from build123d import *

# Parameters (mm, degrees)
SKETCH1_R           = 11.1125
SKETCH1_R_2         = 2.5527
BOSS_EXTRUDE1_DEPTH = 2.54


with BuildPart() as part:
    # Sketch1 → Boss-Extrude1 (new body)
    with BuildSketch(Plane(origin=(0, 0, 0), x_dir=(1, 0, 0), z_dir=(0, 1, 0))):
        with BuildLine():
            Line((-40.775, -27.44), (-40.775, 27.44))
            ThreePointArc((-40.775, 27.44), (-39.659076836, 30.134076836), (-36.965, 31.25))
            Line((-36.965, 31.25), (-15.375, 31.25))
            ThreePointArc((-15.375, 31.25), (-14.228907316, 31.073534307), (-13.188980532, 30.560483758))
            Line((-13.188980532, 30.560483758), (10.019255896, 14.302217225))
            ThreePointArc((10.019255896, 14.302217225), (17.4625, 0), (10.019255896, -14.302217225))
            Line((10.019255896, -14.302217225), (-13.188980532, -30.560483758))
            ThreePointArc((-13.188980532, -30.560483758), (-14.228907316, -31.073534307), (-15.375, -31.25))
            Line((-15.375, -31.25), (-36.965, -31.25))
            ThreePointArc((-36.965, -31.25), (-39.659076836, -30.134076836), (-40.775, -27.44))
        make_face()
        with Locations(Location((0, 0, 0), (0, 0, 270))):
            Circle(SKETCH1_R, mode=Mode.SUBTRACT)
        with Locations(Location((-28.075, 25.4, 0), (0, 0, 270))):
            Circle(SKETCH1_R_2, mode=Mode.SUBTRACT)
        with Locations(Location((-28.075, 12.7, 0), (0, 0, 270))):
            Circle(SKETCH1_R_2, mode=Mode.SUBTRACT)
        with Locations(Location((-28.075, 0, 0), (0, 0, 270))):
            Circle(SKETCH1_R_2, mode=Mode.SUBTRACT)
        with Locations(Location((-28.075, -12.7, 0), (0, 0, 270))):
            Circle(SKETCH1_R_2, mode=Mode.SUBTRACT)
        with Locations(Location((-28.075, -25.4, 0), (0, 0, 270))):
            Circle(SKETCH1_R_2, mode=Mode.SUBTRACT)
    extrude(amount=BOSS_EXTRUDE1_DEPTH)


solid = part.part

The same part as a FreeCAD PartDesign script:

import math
import FreeCAD as App
import Part
import Sketcher
Q = App.Units.Quantity

doc = App.newDocument("Part")
params = doc.addObject("Spreadsheet::Sheet", "Params")
for row, (alias, value) in enumerate([
    ("sketch1_radius", "0.15 in"),
    ("sketch1_diameter", "0.201 in"),
    ("sketch1_diameter2", "0.875 in"),
    ("sketch1_radius2", "0.6875 in"),
    ("pad1_length", "0.1 in"),
], start=1):
    params.set(f"A{row}", alias)
    params.set(f"B{row}", "=" + value)
    params.setAlias(f"B{row}", alias)

body = doc.addObject("PartDesign::Body", "Body")

# Sketch on XZ plane
sketch1 = doc.addObject("Sketcher::SketchObject", "Sketch")
body.addObject(sketch1)
sketch1.AttachmentSupport = (doc.XZ_Plane, [""])
sketch1.MapMode = "FlatFace"
sketch1.addGeometry(Part.LineSegment(App.Vector(-40.775, -27.44, 0), App.Vector(-40.775, 27.44, 0)), False)
sketch1.addGeometry(Part.ArcOfCircle(Part.Circle(App.Vector(-36.965, 27.44, 0), App.Vector(0, 0, 1), 3.81), math.radians(90), math.radians(180)), False)
sketch1.addGeometry(Part.LineSegment(App.Vector(-36.965, 31.25, 0), App.Vector(-15.375, 31.25, 0)), False)
sketch1.addGeometry(Part.ArcOfCircle(Part.Circle(App.Vector(-15.375, 27.44, 0), App.Vector(0, 0, 1), 3.81), math.radians(54.987272), math.radians(90)), False)
sketch1.addGeometry(Part.LineSegment(App.Vector(-13.188981, 30.560484, 0), App.Vector(10.019256, 14.302217, 0)), False)
sketch1.addGeometry(Part.ArcOfCircle(Part.Circle(App.Vector(0, 0, 0), App.Vector(0, 0, 1), 17.4625), math.radians(-54.987272), math.radians(54.987272)), False)
sketch1.addGeometry(Part.LineSegment(App.Vector(10.019256, -14.302217, 0), App.Vector(-13.188981, -30.560484, 0)), False)
sketch1.addGeometry(Part.ArcOfCircle(Part.Circle(App.Vector(-15.375, -27.44, 0), App.Vector(0, 0, 1), 3.81), math.radians(-90), math.radians(-54.987272)), False)
sketch1.addGeometry(Part.LineSegment(App.Vector(-15.375, -31.25, 0), App.Vector(-36.965, -31.25, 0)), False)
sketch1.addGeometry(Part.ArcOfCircle(Part.Circle(App.Vector(-36.965, -27.44, 0), App.Vector(0, 0, 1), 3.81), math.radians(-180), math.radians(-90)), False)
sketch1.addGeometry(Part.Circle(App.Vector(-28.075, 25.4, 0), App.Vector(0, 0, 1), 2.5527), False)
sketch1.addGeometry(Part.Circle(App.Vector(-28.075, 12.7, 0), App.Vector(0, 0, 1), 2.5527), False)
sketch1.addGeometry(Part.Circle(App.Vector(0, 0, 0), App.Vector(0, 0, 1), 11.1125), False)
sketch1.addGeometry(Part.Circle(App.Vector(-28.075, 0, 0), App.Vector(0, 0, 1), 2.5527), False)
sketch1.addGeometry(Part.Circle(App.Vector(-28.075, -12.7, 0), App.Vector(0, 0, 1), 2.5527), False)
sketch1.addGeometry(Part.Circle(App.Vector(-28.075, -25.4, 0), App.Vector(0, 0, 1), 2.5527), False)
sketch1.addConstraint(Sketcher.Constraint("Tangent", 0, 2, 1, 2))
sketch1.addConstraint(Sketcher.Constraint("Tangent", 1, 1, 2, 1))
sketch1.addConstraint(Sketcher.Constraint("Tangent", 2, 2, 3, 2))
sketch1.addConstraint(Sketcher.Constraint("Tangent", 3, 1, 4, 1))
sketch1.addConstraint(Sketcher.Constraint("Tangent", 4, 2, 5, 2))
sketch1.addConstraint(Sketcher.Constraint("Tangent", 5, 1, 6, 1))
sketch1.addConstraint(Sketcher.Constraint("Tangent", 6, 2, 7, 2))
sketch1.addConstraint(Sketcher.Constraint("Tangent", 7, 1, 8, 1))
sketch1.addConstraint(Sketcher.Constraint("Tangent", 8, 2, 9, 2))
sketch1.addConstraint(Sketcher.Constraint("Tangent", 9, 1, 0, 1))
sketch1.addConstraint(Sketcher.Constraint("Vertical", 0))
sketch1.addConstraint(Sketcher.Constraint("Horizontal", 2))
sketch1.addConstraint(Sketcher.Constraint("Horizontal", 8))
sketch1.addConstraint(Sketcher.Constraint("Coincident", 5, 3, -1, 1))
sketch1.addConstraint(Sketcher.Constraint("Coincident", 12, 3, -1, 1))
sketch1.addConstraint(Sketcher.Constraint("Equal", 1, 3))
sketch1.addConstraint(Sketcher.Constraint("Equal", 3, 7))
sketch1.addConstraint(Sketcher.Constraint("Equal", 7, 9))
sketch1.addConstraint(Sketcher.Constraint("Equal", 10, 11))
sketch1.addConstraint(Sketcher.Constraint("Equal", 11, 13))
sketch1.addConstraint(Sketcher.Constraint("Equal", 13, 14))
sketch1.addConstraint(Sketcher.Constraint("Equal", 14, 15))
sketch1.addConstraint(Sketcher.Constraint("Symmetric", 3, 3, 7, 3, -1))
sketch1.addConstraint(Sketcher.Constraint("Symmetric", 11, 3, 14, 3, -1))
sketch1.addConstraint(Sketcher.Constraint("Symmetric", 10, 3, 15, 3, -1))
sketch1.addConstraint(Sketcher.Constraint("PointOnObject", 13, 3, -1))
sketch1.addConstraint(Sketcher.Constraint("Vertical", 10, 3, 11, 3))
sketch1.addConstraint(Sketcher.Constraint("Vertical", 11, 3, 13, 3))
sketch1.addConstraint(Sketcher.Constraint("Radius", 1, Q("0.15 in")))
sketch1.addConstraint(Sketcher.Constraint("Diameter", 10, Q("0.201 in")))
sketch1.addConstraint(Sketcher.Constraint("Diameter", 12, Q("0.875 in")))
sketch1.addConstraint(Sketcher.Constraint("DistanceY", -1, 1, 10, 3, Q("1 in")))
sketch1.addConstraint(Sketcher.Constraint("Radius", 5, Q("0.6875 in")))
sketch1.addConstraint(Sketcher.Constraint("DistanceY", 14, 3, 11, 3, Q("1 in")))
sketch1.addConstraint(Sketcher.Constraint("DistanceX", 0, 2, 3, 3, Q("1 in")))
sketch1.addConstraint(Sketcher.Constraint("DistanceX", 10, 3, 3, 3, Q("0.5 in")))
sketch1.addConstraint(Sketcher.Constraint("DistanceY", 0, 1, 0, 2, 54.88))
sketch1.addConstraint(Sketcher.Constraint("DistanceX", 1, 3, -1, 1, 36.965))
sketch1.setExpression("Constraints[28]", "Params.sketch1_radius")
sketch1.setExpression("Constraints[29]", "Params.sketch1_diameter")
sketch1.setExpression("Constraints[30]", "Params.sketch1_diameter2")
sketch1.setExpression("Constraints[32]", "Params.sketch1_radius2")
pad1 = doc.addObject("PartDesign::Pad", "Pad")
body.addObject(pad1)
pad1.Profile = sketch1
pad1.setExpression("Length", "Params.pad1_length")
pad1.Reversed = True

doc.recompute()
